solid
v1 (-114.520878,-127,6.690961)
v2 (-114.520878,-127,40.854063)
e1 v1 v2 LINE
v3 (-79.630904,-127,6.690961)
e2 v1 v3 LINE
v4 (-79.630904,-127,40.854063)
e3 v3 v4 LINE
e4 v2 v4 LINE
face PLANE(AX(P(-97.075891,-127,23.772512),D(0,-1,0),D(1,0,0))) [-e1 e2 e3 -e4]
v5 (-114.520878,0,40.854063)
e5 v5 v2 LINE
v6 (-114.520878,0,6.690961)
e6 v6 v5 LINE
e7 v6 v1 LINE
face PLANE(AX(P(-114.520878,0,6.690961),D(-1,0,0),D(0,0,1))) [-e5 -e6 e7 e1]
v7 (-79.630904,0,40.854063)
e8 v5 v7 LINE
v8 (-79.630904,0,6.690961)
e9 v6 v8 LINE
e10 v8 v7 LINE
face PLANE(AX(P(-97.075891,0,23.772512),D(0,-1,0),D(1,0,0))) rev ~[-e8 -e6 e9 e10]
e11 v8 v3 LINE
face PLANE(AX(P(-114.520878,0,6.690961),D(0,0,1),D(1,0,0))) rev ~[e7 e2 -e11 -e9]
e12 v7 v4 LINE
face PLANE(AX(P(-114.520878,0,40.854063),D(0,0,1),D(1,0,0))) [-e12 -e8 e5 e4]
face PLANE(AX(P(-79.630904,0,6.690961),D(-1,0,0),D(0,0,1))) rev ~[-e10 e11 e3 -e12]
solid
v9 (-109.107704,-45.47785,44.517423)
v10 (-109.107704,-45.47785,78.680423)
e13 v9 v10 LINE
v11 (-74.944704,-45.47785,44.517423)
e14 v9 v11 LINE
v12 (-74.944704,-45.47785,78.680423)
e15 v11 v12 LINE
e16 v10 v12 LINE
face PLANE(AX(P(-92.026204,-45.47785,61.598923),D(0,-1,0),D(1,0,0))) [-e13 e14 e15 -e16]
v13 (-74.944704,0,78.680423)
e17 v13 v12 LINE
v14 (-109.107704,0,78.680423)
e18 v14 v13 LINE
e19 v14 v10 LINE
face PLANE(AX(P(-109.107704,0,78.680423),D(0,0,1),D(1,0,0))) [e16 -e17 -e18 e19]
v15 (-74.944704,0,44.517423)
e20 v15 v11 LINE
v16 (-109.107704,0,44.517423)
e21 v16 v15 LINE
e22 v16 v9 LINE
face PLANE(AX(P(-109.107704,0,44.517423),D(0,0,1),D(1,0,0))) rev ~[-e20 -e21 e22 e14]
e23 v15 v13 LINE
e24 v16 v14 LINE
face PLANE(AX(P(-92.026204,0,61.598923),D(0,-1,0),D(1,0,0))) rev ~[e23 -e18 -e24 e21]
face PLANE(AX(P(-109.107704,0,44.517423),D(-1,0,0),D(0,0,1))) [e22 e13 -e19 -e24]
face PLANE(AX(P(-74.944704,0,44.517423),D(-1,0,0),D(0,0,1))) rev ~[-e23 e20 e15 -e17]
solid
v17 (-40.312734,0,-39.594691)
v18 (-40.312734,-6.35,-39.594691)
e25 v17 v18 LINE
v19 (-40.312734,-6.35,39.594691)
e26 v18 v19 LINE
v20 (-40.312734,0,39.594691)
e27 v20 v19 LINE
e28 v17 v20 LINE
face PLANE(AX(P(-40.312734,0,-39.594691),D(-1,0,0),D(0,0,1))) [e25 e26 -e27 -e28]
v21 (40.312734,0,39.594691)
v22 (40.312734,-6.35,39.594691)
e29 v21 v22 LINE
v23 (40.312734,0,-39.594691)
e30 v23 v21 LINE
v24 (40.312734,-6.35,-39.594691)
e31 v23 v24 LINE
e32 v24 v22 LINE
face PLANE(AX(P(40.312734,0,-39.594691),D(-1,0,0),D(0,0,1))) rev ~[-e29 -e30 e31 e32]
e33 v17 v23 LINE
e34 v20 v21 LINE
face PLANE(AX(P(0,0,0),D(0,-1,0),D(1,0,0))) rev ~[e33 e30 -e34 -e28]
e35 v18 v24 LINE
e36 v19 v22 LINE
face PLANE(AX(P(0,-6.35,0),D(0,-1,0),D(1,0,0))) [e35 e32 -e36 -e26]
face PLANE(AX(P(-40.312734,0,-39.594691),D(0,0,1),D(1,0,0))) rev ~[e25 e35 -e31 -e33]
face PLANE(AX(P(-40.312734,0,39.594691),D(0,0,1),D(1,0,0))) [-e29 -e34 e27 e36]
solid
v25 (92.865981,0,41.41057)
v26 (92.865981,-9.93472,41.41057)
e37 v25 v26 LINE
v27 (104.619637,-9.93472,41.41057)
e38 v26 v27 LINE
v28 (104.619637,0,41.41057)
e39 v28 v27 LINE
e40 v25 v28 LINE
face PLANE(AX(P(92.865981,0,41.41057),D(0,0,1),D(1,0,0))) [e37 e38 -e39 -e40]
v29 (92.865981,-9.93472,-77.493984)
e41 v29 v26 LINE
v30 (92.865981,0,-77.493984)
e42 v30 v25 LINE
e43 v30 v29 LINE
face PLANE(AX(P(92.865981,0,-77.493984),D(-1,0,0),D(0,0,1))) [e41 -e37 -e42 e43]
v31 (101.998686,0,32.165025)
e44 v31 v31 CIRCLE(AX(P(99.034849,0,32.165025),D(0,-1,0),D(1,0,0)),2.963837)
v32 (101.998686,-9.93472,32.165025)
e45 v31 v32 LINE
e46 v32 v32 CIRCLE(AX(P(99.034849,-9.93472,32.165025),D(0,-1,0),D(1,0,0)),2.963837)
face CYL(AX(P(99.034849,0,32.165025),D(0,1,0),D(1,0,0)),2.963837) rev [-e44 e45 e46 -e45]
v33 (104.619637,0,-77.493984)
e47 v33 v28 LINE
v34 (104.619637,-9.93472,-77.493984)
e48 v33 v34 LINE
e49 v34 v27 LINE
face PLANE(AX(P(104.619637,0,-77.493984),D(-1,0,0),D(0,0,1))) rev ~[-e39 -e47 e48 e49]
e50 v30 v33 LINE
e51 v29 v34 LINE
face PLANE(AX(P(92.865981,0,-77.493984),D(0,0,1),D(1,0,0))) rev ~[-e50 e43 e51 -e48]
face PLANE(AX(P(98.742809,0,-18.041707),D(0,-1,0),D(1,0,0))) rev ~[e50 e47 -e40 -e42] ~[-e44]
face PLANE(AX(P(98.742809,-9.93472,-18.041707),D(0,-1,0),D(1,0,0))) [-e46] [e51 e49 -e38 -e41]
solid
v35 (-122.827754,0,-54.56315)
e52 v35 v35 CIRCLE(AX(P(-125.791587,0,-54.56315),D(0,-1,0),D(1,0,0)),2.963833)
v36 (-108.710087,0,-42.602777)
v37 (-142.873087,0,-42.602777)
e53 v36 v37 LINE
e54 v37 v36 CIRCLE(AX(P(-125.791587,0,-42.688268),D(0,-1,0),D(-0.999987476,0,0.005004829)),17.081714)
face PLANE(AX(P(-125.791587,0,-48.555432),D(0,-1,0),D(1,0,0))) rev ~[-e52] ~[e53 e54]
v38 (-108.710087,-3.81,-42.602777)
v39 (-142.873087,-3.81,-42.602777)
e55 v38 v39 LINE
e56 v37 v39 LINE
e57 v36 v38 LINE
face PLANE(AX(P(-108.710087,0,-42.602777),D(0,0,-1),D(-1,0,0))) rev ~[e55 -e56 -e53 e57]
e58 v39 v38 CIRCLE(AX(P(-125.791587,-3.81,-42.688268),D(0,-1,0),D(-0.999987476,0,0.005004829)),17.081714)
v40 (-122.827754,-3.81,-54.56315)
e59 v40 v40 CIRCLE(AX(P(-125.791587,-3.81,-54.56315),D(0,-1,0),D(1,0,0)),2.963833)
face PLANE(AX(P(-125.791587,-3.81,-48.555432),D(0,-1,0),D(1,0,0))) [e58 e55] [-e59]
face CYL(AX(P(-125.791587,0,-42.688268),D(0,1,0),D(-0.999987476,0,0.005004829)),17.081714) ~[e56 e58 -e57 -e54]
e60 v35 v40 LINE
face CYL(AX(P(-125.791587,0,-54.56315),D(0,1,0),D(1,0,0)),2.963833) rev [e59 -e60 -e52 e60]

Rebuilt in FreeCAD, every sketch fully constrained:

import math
import FreeCAD as App
import Part
import Sketcher

V = App.Vector
Q = App.Units.Quantity


def add_polygon(sketch, points):
    """Adds a closed chain of lines whose ends are joined by coincident constraints."""
    first, n = sketch.GeometryCount, len(points)
    for a, b in zip(points, points[1:] + points[:1]):
        sketch.addGeometry(Part.LineSegment(App.Vector(*a, 0), App.Vector(*b, 0)), False)
    for i in range(n):
        sketch.addConstraint(Sketcher.Constraint("Coincident", first + i, 2, first + (i + 1) % n, 1))

doc = App.newDocument("Part")
body = doc.addObject("PartDesign::Body", "Body")

# Sketch on XZ plane
sketch1 = body.newObject("Sketcher::SketchObject", "Sketch")
sketch1.AttachmentSupport = (doc.getObject("XZ_Plane"), [""])
sketch1.MapMode = "FlatFace"
add_polygon(sketch1, [(-40, 40), (-40, -40), (40, -40), (40, 40)])  # lines 0-3
sketch1.addConstraint(Sketcher.Constraint("Vertical", 0))
sketch1.addConstraint(Sketcher.Constraint("Horizontal", 1))
sketch1.addConstraint(Sketcher.Constraint("Vertical", 2))
sketch1.addConstraint(Sketcher.Constraint("Horizontal", 3))
sketch1.addConstraint(Sketcher.Constraint("Symmetric", 0, 2, 2, 2, -1, 1))
sketch1.addConstraint(Sketcher.Constraint("DistanceY", 0, 2, 0, 1, 79.189382))
sketch1.addConstraint(Sketcher.Constraint("DistanceX", 1, 1, 1, 2, 80.625468))
pad1 = body.newObject("PartDesign::Pad", "Pad")
pad1.Profile = sketch1
pad1.Length = Q("0.25 in")
body2 = doc.addObject("PartDesign::Body", "Body001")

# Sketch on XZ plane
sketch2 = body2.newObject("Sketcher::SketchObject", "Sketch001")
sketch2.AttachmentSupport = (doc.getObject("XZ_Plane001"), [""])
sketch2.MapMode = "FlatFace"
add_polygon(sketch2, [(-115, 41), (-115, 7), (-80, 7), (-80, 41)])  # lines 0-3
sketch2.addConstraint(Sketcher.Constraint("Vertical", 0))
sketch2.addConstraint(Sketcher.Constraint("Horizontal", 1))
sketch2.addConstraint(Sketcher.Constraint("Vertical", 2))
sketch2.addConstraint(Sketcher.Constraint("Horizontal", 3))
sketch2.addConstraint(Sketcher.Constraint("DistanceY", 0, 2, 0, 1, 34.163102))
sketch2.addConstraint(Sketcher.Constraint("DistanceX", 1, 1, 1, 2, 34.889974))
sketch2.addConstraint(Sketcher.Constraint("DistanceY", -1, 1, 0, 2, 6.690961))
sketch2.addConstraint(Sketcher.Constraint("DistanceX", 0, 2, -1, 1, 114.520878))
pad2 = body2.newObject("PartDesign::Pad", "Pad001")
pad2.Profile = sketch2
pad2.Length = Q("5 in")
body3 = doc.addObject("PartDesign::Body", "Body002")

# Sketch on XZ plane
sketch3 = body3.newObject("Sketcher::SketchObject", "Sketch002")
sketch3.AttachmentSupport = (doc.getObject("XZ_Plane002"), [""])
sketch3.MapMode = "FlatFace"
sketch3.addGeometry(Part.LineSegment(V(-108.710087, -42.602777, 0), V(-142.873087, -42.602777, 0)), False)
sketch3.addGeometry(Part.ArcOfCircle(Part.Circle(V(-125.791587, -42.688268, 0), V(0, 0, 1), 17.081714), math.radians(179.713243), math.radians(360.286757)), False)
sketch3.addGeometry(Part.Circle(V(-125.791587, -54.56315, 0), V(0, 0, 1), 2.963833), False)
sketch3.addConstraint(Sketcher.Constraint("Coincident", 0, 1, 1, 2))
sketch3.addConstraint(Sketcher.Constraint("Coincident", 1, 1, 0, 2))
sketch3.addConstraint(Sketcher.Constraint("Horizontal", 0))
sketch3.addConstraint(Sketcher.Constraint("Vertical", 1, 3, 2, 3))
sketch3.addConstraint(Sketcher.Constraint("DistanceX", 0, 2, 0, 1, Q("1.345 in")))
sketch3.addConstraint(Sketcher.Constraint("Diameter", 2, 5.927666))
sketch3.addConstraint(Sketcher.Constraint("Radius", 1, 17.081714))
sketch3.addConstraint(Sketcher.Constraint("DistanceY", 1, 3, -1, 1, 42.688268))
sketch3.addConstraint(Sketcher.Constraint("DistanceY", 2, 3, -1, 1, 54.56315))
sketch3.addConstraint(Sketcher.Constraint("DistanceX", 1, 3, -1, 1, 125.791587))
pad3 = body3.newObject("PartDesign::Pad", "Pad002")
pad3.Profile = sketch3
pad3.Length = Q("0.15 in")
body4 = doc.addObject("PartDesign::Body", "Body003")

# Sketch on XZ plane
sketch4 = body4.newObject("Sketcher::SketchObject", "Sketch003")
sketch4.AttachmentSupport = (doc.getObject("XZ_Plane003"), [""])
sketch4.MapMode = "FlatFace"
add_polygon(sketch4, [(-109, 79), (-109, 45), (-75, 45), (-75, 79)])  # lines 0-3
sketch4.addConstraint(Sketcher.Constraint("Vertical", 0))
sketch4.addConstraint(Sketcher.Constraint("Horizontal", 1))
sketch4.addConstraint(Sketcher.Constraint("Vertical", 2))
sketch4.addConstraint(Sketcher.Constraint("Horizontal", 3))
sketch4.addConstraint(Sketcher.Constraint("Equal", 3, 0))
sketch4.addConstraint(Sketcher.Constraint("DistanceX", 1, 1, 1, 2, Q("1.345 in")))
sketch4.addConstraint(Sketcher.Constraint("DistanceX", 0, 2, -1, 1, 109.107704))
sketch4.addConstraint(Sketcher.Constraint("DistanceY", -1, 1, 0, 2, 44.517423))
pad4 = body4.newObject("PartDesign::Pad", "Pad003")
pad4.Profile = sketch4
pad4.Length = 45.47785
body5 = doc.addObject("PartDesign::Body", "Body004")

# Sketch on XZ plane
sketch5 = body5.newObject("Sketcher::SketchObject", "Sketch004")
sketch5.AttachmentSupport = (doc.getObject("XZ_Plane004"), [""])
sketch5.MapMode = "FlatFace"
add_polygon(sketch5, [(92.9, 41.4), (92.9, -77.5), (104.6, -77.5), (104.6, 41.4)])  # lines 0-3
sketch5.addGeometry(Part.Circle(V(99, 32.2, 0), V(0, 0, 1), 3), False)  # 4
sketch5.addConstraint(Sketcher.Constraint("Vertical", 0))
sketch5.addConstraint(Sketcher.Constraint("Horizontal", 1))
sketch5.addConstraint(Sketcher.Constraint("Vertical", 2))
sketch5.addConstraint(Sketcher.Constraint("Horizontal", 3))
sketch5.addConstraint(Sketcher.Constraint("Diameter", 4, 5.927674))
sketch5.addConstraint(Sketcher.Constraint("DistanceX", 1, 1, 1, 2, 11.753656))
sketch5.addConstraint(Sketcher.Constraint("DistanceY", 0, 2, 0, 1, 118.904555))
sketch5.addConstraint(Sketcher.Constraint("DistanceX", -1, 1, 4, 3, 99.034849))
sketch5.addConstraint(Sketcher.Constraint("DistanceX", -1, 1, 0, 2, 92.865981))
sketch5.addConstraint(Sketcher.Constraint("DistanceY", -1, 1, 2, 2, 41.41057))
sketch5.addConstraint(Sketcher.Constraint("DistanceY", 0, 2, 4, 3, 109.659009))
pad5 = body5.newObject("PartDesign::Pad", "Pad004")
pad5.Profile = sketch5
pad5.Length = 9.93472

doc.recompute()
